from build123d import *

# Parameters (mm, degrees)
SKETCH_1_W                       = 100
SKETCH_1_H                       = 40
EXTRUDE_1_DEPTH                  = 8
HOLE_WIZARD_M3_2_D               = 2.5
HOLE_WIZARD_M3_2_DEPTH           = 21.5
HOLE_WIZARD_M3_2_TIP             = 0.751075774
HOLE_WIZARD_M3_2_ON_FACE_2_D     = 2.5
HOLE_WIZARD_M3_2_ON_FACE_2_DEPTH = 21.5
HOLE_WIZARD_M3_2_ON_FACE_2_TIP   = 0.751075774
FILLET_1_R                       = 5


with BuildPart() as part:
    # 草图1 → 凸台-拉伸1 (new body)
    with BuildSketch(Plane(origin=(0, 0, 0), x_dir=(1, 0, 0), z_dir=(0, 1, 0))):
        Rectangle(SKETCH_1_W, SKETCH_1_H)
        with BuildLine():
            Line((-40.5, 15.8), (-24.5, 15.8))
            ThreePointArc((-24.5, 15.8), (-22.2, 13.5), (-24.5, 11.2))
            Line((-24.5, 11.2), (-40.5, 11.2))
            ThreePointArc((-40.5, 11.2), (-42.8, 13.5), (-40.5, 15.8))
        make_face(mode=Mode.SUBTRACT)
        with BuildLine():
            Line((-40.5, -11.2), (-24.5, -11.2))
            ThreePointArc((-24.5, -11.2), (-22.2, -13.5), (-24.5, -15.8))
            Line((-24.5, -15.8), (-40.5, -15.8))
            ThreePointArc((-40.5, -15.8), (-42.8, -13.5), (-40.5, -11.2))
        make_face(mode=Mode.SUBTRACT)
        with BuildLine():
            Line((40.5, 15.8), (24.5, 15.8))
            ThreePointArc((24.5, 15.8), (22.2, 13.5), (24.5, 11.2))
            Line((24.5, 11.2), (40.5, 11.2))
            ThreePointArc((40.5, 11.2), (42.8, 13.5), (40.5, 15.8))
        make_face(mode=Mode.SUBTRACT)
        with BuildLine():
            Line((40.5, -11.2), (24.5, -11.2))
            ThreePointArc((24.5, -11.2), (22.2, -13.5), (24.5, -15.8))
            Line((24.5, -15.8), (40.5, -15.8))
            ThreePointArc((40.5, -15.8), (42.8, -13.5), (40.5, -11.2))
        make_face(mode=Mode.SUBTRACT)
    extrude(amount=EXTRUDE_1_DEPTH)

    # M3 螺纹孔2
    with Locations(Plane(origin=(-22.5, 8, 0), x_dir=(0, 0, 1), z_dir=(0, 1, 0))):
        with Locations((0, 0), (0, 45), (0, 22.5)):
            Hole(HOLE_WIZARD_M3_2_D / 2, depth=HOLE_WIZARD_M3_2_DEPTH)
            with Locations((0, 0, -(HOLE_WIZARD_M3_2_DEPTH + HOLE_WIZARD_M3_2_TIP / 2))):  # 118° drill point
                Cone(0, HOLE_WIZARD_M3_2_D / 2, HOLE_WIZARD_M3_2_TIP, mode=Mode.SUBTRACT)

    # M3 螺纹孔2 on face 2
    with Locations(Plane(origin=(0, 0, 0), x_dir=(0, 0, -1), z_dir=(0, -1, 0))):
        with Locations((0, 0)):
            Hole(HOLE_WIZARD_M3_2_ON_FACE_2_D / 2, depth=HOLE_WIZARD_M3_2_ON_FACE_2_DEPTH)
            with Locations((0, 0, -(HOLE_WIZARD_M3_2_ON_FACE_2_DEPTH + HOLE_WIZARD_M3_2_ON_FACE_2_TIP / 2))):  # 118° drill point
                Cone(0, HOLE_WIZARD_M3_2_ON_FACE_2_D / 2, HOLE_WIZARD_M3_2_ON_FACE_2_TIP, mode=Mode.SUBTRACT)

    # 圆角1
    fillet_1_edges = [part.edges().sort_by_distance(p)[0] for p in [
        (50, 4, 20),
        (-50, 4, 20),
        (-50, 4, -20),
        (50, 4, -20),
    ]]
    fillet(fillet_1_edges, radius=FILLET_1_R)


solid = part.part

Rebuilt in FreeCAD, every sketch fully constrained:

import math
import FreeCAD as App
import Part
import Sketcher

V = App.Vector
Q = App.Units.Quantity


def edges_at(feature, points):
    """Names of the edges that pass closest to the given points."""
    edges = feature.Shape.Edges
    near = lambda p: min(range(len(edges)), key=lambda i: edges[i].distToShape(Part.Vertex(*p))[0])
    return sorted({f"Edge{near(p) + 1}" for p in points})


def add_polygon(sketch, points):
    """Adds a closed chain of lines whose ends are joined by coincident constraints."""
    first, n = sketch.GeometryCount, len(points)
    for a, b in zip(points, points[1:] + points[:1]):
        sketch.addGeometry(Part.LineSegment(App.Vector(*a, 0), App.Vector(*b, 0)), False)
    for i in range(n):
        sketch.addConstraint(Sketcher.Constraint("Coincident", first + i, 2, first + (i + 1) % n, 1))

doc = App.newDocument("Part")
body = doc.addObject("PartDesign::Body", "Body")

# Sketch on XZ plane
sketch1 = body.newObject("Sketcher::SketchObject", "Sketch")
sketch1.AttachmentSupport = (doc.getObject("XZ_Plane"), [""])
sketch1.MapMode = "FlatFace"
add_polygon(sketch1, [(-50, -20), (-50, 20), (50, 20), (50, -20)])  # lines 0-3
sketch1.addGeometry(Part.ArcOfCircle(Part.Circle(V(-40.5, 13.5, 0), V(0, 0, 1), 2.3), math.radians(90), math.radians(270)), False)  # 4
sketch1.addGeometry(Part.LineSegment(V(-40.5, 11.2, 0), V(-24.5, 11.2, 0)), False)  # 5
sketch1.addGeometry(Part.ArcOfCircle(Part.Circle(V(-24.5, 13.5, 0), V(0, 0, 1), 2.3), math.radians(-90), math.radians(90)), False)  # 6
sketch1.addGeometry(Part.LineSegment(V(-24.5, 15.8, 0), V(-40.5, 15.8, 0)), False)  # 7
sketch1.addGeometry(Part.LineSegment(V(24.5, 11.2, 0), V(40.5, 11.2, 0)), False)  # 8
sketch1.addGeometry(Part.ArcOfCircle(Part.Circle(V(40.5, 13.5, 0), V(0, 0, 1), 2.3), math.radians(-90), math.radians(90)), False)  # 9
sketch1.addGeometry(Part.LineSegment(V(40.5, 15.8, 0), V(24.5, 15.8, 0)), False)  # 10
sketch1.addGeometry(Part.ArcOfCircle(Part.Circle(V(24.5, 13.5, 0), V(0, 0, 1), 2.3), math.radians(90), math.radians(270)), False)  # 11
sketch1.addGeometry(Part.ArcOfCircle(Part.Circle(V(-40.5, -13.5, 0), V(0, 0, 1), 2.3), math.radians(90), math.radians(270)), False)  # 12
sketch1.addGeometry(Part.LineSegment(V(-40.5, -15.8, 0), V(-24.5, -15.8, 0)), False)  # 13
sketch1.addGeometry(Part.ArcOfCircle(Part.Circle(V(-24.5, -13.5, 0), V(0, 0, 1), 2.3), math.radians(-90), math.radians(90)), False)  # 14
sketch1.addGeometry(Part.LineSegment(V(-24.5, -11.2, 0), V(-40.5, -11.2, 0)), False)  # 15
sketch1.addGeometry(Part.LineSegment(V(24.5, -15.8, 0), V(40.5, -15.8, 0)), False)  # 16
sketch1.addGeometry(Part.ArcOfCircle(Part.Circle(V(40.5, -13.5, 0), V(0, 0, 1), 2.3), math.radians(-90), math.radians(90)), False)  # 17
sketch1.addGeometry(Part.LineSegment(V(40.5, -11.2, 0), V(24.5, -11.2, 0)), False)  # 18
sketch1.addGeometry(Part.ArcOfCircle(Part.Circle(V(24.5, -13.5, 0), V(0, 0, 1), 2.3), math.radians(90), math.radians(270)), False)  # 19
sketch1.addConstraint([
    Sketcher.Constraint("Tangent", 4, 2, 5, 1),
    Sketcher.Constraint("Tangent", 5, 2, 6, 1),
    Sketcher.Constraint("Tangent", 6, 2, 7, 1),
    Sketcher.Constraint("Tangent", 7, 2, 4, 1),
    Sketcher.Constraint("Tangent", 8, 2, 9, 1),
    Sketcher.Constraint("Tangent", 9, 2, 10, 1),
    Sketcher.Constraint("Tangent", 10, 2, 11, 1),
    Sketcher.Constraint("Tangent", 11, 2, 8, 1),
    Sketcher.Constraint("Tangent", 12, 2, 13, 1),
    Sketcher.Constraint("Tangent", 13, 2, 14, 1),
    Sketcher.Constraint("Tangent", 14, 2, 15, 1),
    Sketcher.Constraint("Tangent", 15, 2, 12, 1),
    Sketcher.Constraint("Tangent", 16, 2, 17, 1),
    Sketcher.Constraint("Tangent", 17, 2, 18, 1),
    Sketcher.Constraint("Tangent", 18, 2, 19, 1),
    Sketcher.Constraint("Tangent", 19, 2, 16, 1),
    Sketcher.Constraint("Vertical", 0),
    Sketcher.Constraint("Horizontal", 1),
    Sketcher.Constraint("Vertical", 2),
    Sketcher.Constraint("Horizontal", 3),
    Sketcher.Constraint("Horizontal", 5),
    Sketcher.Constraint("Horizontal", 7),
    Sketcher.Constraint("Horizontal", 8),
    Sketcher.Constraint("Horizontal", 10),
    Sketcher.Constraint("Horizontal", 13),
    Sketcher.Constraint("Horizontal", 15),
    Sketcher.Constraint("Horizontal", 16),
    Sketcher.Constraint("Horizontal", 18),
    Sketcher.Constraint("Equal", 6, 9),
    Sketcher.Constraint("Equal", 11, 12),
    Sketcher.Constraint("Equal", 14, 17),
    Sketcher.Constraint("Symmetric", 9, 3, 12, 3, -1, 1),
    Sketcher.Constraint("Symmetric", 4, 3, 17, 3, -1, 1),
    Sketcher.Constraint("Symmetric", 0, 2, 2, 2, -1, 1),
    Sketcher.Constraint("Symmetric", 4, 3, 9, 3, -2),
    Sketcher.Constraint("Vertical", 6, 3, 14, 3),
    Sketcher.Constraint("Vertical", 11, 3, 19, 3),
    Sketcher.Constraint("Equal", 7, 8),
    Sketcher.Constraint("Radius", 4, Q("2.3 mm")),
    Sketcher.Constraint("DistanceX", 1, 1, 1, 2, Q("100 mm")),
    Sketcher.Constraint("DistanceX", 5, 1, 5, 2, Q("16 mm")),
    Sketcher.Constraint("DistanceY", 0, 1, 0, 2, Q("40 mm")),
    Sketcher.Constraint("DistanceX", 6, 3, 9, 3, Q("65 mm")),
    Sketcher.Constraint("DistanceY", 12, 3, 4, 3, Q("27 mm")),
])
pad1 = body.newObject("PartDesign::Pad", "Pad")
pad1.Profile = sketch1
pad1.Length = 8
pad1.Reversed = True

# Sketch on XZ plane
sketch2 = body.newObject("Sketcher::SketchObject", "Sketch001")
sketch2.AttachmentSupport = (doc.getObject("XZ_Plane"), [""])
sketch2.MapMode = "FlatFace"
sketch2.AttachmentOffset = App.Placement(V(0, 0, -8), App.Rotation())
sketch2.addGeometry([
    Part.Circle(V(-22.5, 0, 0), V(0, 0, 1), 1.2),
    Part.Circle(V(22.5, 0, 0), V(0, 0, 1), 1.2),
    Part.Circle(V(0, 0, 0), V(0, 0, 1), 1.2),
], False)
sketch2.addConstraint([
    Sketcher.Constraint("Coincident", 2, 3, -1, 1),
    Sketcher.Constraint("Equal", 0, 1),
    Sketcher.Constraint("Equal", 1, 2),
    Sketcher.Constraint("Symmetric", 0, 3, 1, 3, -1, 1),
    Sketcher.Constraint("PointOnObject", 0, 3, -1),
    Sketcher.Constraint("Diameter", 0, Q("2.5 mm")),
    Sketcher.Constraint("DistanceX", 0, 3, 1, 3, Q("45 mm")),
])
doc.recompute()
hole = body.newObject("PartDesign::Hole", "Hole")
hole.Profile = sketch2
hole.ThreadType = "None"
hole.Diameter = 2.5
hole.DepthType = "Dimension"
hole.Depth = 21.5
hole.DrillPoint = "Angled"
hole.DrillPointAngle = 118
hole.Reversed = True

# Sketch on XZ plane
sketch3 = body.newObject("Sketcher::SketchObject", "Sketch002")
sketch3.AttachmentSupport = (doc.getObject("XZ_Plane"), [""])
sketch3.MapMode = "FlatFace"
sketch3.addGeometry(Part.Circle(V(0, 0, 0), V(0, 0, 1), 1.2), False)
sketch3.addConstraint([
    Sketcher.Constraint("Coincident", 0, 3, -1, 1),
    Sketcher.Constraint("Diameter", 0, Q("2.5 mm")),
])
doc.recompute()
hole2 = body.newObject("PartDesign::Hole", "Hole001")
hole2.Profile = sketch3
hole2.ThreadType = "None"
hole2.Diameter = 2.5
hole2.DepthType = "Dimension"
hole2.Depth = 21.5
hole2.DrillPoint = "Angled"
hole2.DrillPointAngle = 118
doc.recompute()

fillet = body.newObject("PartDesign::Fillet", "Fillet")
fillet.Base = (hole2, edges_at(hole2, [
    (50, 4, 20),
    (-50, 4, 20),
    (-50, 4, -20),
    (50, 4, -20),
]))
fillet.Radius = 5

doc.recompute()
